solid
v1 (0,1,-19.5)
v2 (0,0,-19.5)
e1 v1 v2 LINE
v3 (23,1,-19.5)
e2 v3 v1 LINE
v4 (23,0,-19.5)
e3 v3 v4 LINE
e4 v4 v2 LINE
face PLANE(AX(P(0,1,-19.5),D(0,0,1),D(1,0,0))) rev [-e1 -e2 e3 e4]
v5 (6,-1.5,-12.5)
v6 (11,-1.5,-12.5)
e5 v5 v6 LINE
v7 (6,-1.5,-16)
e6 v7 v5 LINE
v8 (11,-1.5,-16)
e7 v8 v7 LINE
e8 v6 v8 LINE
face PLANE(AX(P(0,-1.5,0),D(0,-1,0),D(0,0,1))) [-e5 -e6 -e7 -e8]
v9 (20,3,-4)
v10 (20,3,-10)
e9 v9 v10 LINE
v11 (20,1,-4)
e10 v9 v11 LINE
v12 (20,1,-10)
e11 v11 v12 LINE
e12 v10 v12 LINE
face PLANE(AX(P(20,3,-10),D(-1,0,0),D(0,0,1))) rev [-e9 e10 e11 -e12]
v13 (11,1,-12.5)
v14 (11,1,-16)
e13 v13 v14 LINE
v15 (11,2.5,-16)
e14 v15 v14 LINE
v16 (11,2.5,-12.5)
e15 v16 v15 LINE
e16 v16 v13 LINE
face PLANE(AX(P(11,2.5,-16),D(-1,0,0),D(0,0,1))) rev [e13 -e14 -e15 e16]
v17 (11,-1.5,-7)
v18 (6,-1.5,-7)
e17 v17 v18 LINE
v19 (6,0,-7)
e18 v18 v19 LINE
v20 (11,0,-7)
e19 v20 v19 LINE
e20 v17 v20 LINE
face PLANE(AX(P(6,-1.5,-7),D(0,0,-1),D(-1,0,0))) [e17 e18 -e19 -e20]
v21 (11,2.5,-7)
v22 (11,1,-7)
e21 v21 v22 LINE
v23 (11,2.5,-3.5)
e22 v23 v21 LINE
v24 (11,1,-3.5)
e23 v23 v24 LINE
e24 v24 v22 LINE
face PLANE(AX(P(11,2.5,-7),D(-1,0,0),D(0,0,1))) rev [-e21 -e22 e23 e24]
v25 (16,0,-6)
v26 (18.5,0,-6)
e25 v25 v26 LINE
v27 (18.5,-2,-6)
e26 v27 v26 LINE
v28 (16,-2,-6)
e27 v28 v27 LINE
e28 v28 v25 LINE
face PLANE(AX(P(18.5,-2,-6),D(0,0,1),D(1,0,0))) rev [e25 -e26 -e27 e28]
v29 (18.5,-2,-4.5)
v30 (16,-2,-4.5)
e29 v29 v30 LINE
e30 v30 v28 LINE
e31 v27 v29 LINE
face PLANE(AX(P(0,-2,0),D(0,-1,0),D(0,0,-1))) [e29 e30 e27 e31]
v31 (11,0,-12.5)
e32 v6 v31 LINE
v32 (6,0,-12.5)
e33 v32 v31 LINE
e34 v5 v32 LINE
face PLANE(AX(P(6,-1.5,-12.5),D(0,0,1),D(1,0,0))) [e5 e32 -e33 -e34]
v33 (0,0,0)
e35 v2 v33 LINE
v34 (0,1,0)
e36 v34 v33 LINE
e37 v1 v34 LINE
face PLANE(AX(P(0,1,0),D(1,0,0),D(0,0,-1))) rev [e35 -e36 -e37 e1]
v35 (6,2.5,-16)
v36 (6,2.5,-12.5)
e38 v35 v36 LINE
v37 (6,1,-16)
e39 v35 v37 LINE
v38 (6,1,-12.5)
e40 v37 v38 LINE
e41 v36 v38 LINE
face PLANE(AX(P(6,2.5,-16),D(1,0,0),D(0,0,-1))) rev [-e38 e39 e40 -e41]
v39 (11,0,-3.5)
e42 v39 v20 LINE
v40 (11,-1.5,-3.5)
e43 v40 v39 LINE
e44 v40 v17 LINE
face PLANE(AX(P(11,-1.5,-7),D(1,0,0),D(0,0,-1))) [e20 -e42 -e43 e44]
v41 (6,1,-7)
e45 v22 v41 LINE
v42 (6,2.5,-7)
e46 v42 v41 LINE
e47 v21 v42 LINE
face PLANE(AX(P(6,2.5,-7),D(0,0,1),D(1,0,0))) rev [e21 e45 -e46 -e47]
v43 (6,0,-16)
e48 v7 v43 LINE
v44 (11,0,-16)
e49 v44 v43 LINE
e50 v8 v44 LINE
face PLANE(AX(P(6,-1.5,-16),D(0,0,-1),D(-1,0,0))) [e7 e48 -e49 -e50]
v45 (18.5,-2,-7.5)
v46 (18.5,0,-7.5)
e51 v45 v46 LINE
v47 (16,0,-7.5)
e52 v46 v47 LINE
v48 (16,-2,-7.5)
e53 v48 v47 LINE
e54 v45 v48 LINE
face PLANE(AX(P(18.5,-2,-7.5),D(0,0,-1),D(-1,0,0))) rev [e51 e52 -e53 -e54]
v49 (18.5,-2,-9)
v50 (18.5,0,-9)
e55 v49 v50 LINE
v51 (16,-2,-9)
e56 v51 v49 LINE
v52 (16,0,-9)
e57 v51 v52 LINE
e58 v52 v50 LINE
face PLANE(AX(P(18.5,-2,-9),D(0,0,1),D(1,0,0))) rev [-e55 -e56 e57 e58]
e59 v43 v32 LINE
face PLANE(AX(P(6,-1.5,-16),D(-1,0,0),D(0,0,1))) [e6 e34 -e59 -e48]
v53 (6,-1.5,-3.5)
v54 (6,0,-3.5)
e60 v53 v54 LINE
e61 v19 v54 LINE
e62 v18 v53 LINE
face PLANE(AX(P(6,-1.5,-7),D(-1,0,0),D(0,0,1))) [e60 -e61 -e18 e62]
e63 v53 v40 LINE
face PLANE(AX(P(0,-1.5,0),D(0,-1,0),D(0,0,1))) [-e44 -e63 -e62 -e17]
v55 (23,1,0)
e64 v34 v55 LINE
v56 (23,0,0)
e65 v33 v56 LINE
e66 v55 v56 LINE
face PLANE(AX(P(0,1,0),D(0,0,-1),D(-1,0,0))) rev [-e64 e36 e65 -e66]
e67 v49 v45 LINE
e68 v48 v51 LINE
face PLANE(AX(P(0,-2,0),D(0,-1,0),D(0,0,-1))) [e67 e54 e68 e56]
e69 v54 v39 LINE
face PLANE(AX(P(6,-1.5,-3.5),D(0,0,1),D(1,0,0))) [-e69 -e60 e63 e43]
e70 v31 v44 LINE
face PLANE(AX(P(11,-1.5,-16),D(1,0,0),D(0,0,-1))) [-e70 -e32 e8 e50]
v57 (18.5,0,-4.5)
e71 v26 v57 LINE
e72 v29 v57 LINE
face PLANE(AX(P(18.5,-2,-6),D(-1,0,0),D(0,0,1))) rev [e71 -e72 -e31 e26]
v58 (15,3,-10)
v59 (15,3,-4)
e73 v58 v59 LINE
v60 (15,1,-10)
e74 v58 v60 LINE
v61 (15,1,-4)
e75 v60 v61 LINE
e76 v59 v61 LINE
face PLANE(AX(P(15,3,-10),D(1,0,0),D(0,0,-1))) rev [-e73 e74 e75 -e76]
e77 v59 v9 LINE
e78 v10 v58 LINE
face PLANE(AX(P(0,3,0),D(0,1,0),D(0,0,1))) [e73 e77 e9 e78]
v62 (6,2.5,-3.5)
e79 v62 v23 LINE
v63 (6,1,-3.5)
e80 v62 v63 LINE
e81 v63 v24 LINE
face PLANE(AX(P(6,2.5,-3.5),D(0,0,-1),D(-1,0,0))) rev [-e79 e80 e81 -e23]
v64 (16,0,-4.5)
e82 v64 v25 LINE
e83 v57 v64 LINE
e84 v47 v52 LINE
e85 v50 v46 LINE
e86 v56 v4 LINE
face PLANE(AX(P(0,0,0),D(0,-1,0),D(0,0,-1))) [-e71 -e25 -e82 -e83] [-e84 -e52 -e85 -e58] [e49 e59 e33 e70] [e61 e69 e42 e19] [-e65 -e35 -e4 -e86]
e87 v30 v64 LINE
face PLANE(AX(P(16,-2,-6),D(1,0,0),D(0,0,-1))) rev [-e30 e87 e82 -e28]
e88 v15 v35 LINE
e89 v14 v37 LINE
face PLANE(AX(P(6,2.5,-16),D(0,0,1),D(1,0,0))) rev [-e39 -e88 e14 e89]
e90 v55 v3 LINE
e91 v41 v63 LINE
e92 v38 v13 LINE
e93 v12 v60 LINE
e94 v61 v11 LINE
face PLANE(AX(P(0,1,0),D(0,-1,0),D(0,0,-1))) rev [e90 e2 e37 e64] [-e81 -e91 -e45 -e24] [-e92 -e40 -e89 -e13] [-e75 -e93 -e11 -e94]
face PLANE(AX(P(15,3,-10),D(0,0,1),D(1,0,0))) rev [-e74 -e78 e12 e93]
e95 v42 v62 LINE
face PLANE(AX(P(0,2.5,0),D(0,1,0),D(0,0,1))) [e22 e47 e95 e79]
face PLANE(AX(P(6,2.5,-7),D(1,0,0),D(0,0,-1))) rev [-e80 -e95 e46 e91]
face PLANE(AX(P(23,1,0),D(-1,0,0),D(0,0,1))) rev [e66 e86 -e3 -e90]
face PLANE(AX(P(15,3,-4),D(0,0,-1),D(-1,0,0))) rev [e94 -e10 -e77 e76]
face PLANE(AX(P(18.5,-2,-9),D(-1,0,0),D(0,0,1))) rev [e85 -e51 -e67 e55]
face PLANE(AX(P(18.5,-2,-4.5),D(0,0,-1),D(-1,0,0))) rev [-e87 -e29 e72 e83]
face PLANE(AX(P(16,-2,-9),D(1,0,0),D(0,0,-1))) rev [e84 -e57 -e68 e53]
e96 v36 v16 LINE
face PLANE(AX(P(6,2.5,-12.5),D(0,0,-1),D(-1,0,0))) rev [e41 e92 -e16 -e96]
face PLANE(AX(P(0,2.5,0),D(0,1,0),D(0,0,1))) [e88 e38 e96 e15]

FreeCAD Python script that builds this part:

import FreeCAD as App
import Part
import Sketcher

doc = App.newDocument("Part")
body = doc.addObject("PartDesign::Body", "Body")

sketch1 = doc.addObject("Sketcher::SketchObject", "Sketch")
body.addObject(sketch1)
sketch1.AttachmentSupport = (doc.XZ_Plane, [""])
sketch1.MapMode = "FlatFace"
sketch1.addGeometry(Part.LineSegment(App.Vector(0, -20, 0), App.Vector(0, 0, 0)), False)
sketch1.addGeometry(Part.LineSegment(App.Vector(0, 0, 0), App.Vector(23, 0, 0)), False)
sketch1.addGeometry(Part.LineSegment(App.Vector(23, 0, 0), App.Vector(23, -20, 0)), False)
sketch1.addGeometry(Part.LineSegment(App.Vector(23, -20, 0), App.Vector(0, -20, 0)), False)
sketch1.addConstraint(Sketcher.Constraint("Coincident", 0, 2, 1, 1))
sketch1.addConstraint(Sketcher.Constraint("Coincident", 1, 2, 2, 1))
sketch1.addConstraint(Sketcher.Constraint("Coincident", 2, 2, 3, 1))
sketch1.addConstraint(Sketcher.Constraint("Coincident", 3, 2, 0, 1))
sketch1.addConstraint(Sketcher.Constraint("Vertical", 0))
sketch1.addConstraint(Sketcher.Constraint("Horizontal", 1))
sketch1.addConstraint(Sketcher.Constraint("Vertical", 2))
sketch1.addConstraint(Sketcher.Constraint("Horizontal", 3))
sketch1.addConstraint(Sketcher.Constraint("Coincident", 0, 2, -1, 1))
sketch1.addConstraint(Sketcher.Constraint("DistanceX", 1, 1, 1, 2, 23.0))
sketch1.addConstraint(Sketcher.Constraint("DistanceY", 0, 1, 0, 2, 19.5))
pad1 = doc.addObject("PartDesign::Pad", "Pad")
body.addObject(pad1)
pad1.Profile = sketch1
pad1.Length = 1
pad1.Reversed = True

sketch2 = doc.addObject("Sketcher::SketchObject", "Sketch001")
body.addObject(sketch2)
sketch2.AttachmentSupport = (doc.XZ_Plane, [""])
sketch2.MapMode = "FlatFace"
sketch2.AttachmentOffset = App.Placement(App.Vector(0, 0, -1), App.Rotation())
sketch2.addGeometry(Part.LineSegment(App.Vector(15, -10, 0), App.Vector(15, -4, 0)), False)
sketch2.addGeometry(Part.LineSegment(App.Vector(15, -4, 0), App.Vector(20, -4, 0)), False)
sketch2.addGeometry(Part.LineSegment(App.Vector(20, -4, 0), App.Vector(20, -10, 0)), False)
sketch2.addGeometry(Part.LineSegment(App.Vector(20, -10, 0), App.Vector(15, -10, 0)), False)
sketch2.addConstraint(Sketcher.Constraint("Coincident", 0, 2, 1, 1))
sketch2.addConstraint(Sketcher.Constraint("Coincident", 1, 2, 2, 1))
sketch2.addConstraint(Sketcher.Constraint("Coincident", 2, 2, 3, 1))
sketch2.addConstraint(Sketcher.Constraint("Coincident", 3, 2, 0, 1))
sketch2.addConstraint(Sketcher.Constraint("Vertical", 0))
sketch2.addConstraint(Sketcher.Constraint("Horizontal", 1))
sketch2.addConstraint(Sketcher.Constraint("Vertical", 2))
sketch2.addConstraint(Sketcher.Constraint("Horizontal", 3))
sketch2.addConstraint(Sketcher.Constraint("DistanceX", 1, 1, 1, 2, 5.0))
sketch2.addConstraint(Sketcher.Constraint("DistanceY", 0, 1, 0, 2, 6.0))
sketch2.addConstraint(Sketcher.Constraint("DistanceX", -1, 1, 0, 2, 15.0))
sketch2.addConstraint(Sketcher.Constraint("DistanceY", 0, 2, -1, 1, 4.0))
pad2 = doc.addObject("PartDesign::Pad", "Pad001")
body.addObject(pad2)
pad2.Profile = sketch2
pad2.Length = 2
pad2.Reversed = True

sketch3 = doc.addObject("Sketcher::SketchObject", "Sketch002")
body.addObject(sketch3)
sketch3.AttachmentSupport = (doc.XZ_Plane, [""])
sketch3.MapMode = "FlatFace"
sketch3.AttachmentOffset = App.Placement(App.Vector(0, 0, -1), App.Rotation())
sketch3.addGeometry(Part.LineSegment(App.Vector(6, -16, 0), App.Vector(6, -12.5, 0)), False)
sketch3.addGeometry(Part.LineSegment(App.Vector(6, -12.5, 0), App.Vector(11, -12.5, 0)), False)
sketch3.addGeometry(Part.LineSegment(App.Vector(11, -12.5, 0), App.Vector(11, -16, 0)), False)
sketch3.addGeometry(Part.LineSegment(App.Vector(11, -16, 0), App.Vector(6, -16, 0)), False)
sketch3.addGeometry(Part.LineSegment(App.Vector(6, -7, 0), App.Vector(6, -3.5, 0)), False)
sketch3.addGeometry(Part.LineSegment(App.Vector(6, -3.5, 0), App.Vector(11, -3.5, 0)), False)
sketch3.addGeometry(Part.LineSegment(App.Vector(11, -3.5, 0), App.Vector(11, -7, 0)), False)
sketch3.addGeometry(Part.LineSegment(App.Vector(11, -7, 0), App.Vector(6, -7, 0)), False)
sketch3.addConstraint(Sketcher.Constraint("Coincident", 0, 2, 1, 1))
sketch3.addConstraint(Sketcher.Constraint("Coincident", 1, 2, 2, 1))
sketch3.addConstraint(Sketcher.Constraint("Coincident", 2, 2, 3, 1))
sketch3.addConstraint(Sketcher.Constraint("Coincident", 3, 2, 0, 1))
sketch3.addConstraint(Sketcher.Constraint("Coincident", 4, 2, 5, 1))
sketch3.addConstraint(Sketcher.Constraint("Coincident", 5, 2, 6, 1))
sketch3.addConstraint(Sketcher.Constraint("Coincident", 6, 2, 7, 1))
sketch3.addConstraint(Sketcher.Constraint("Coincident", 7, 2, 4, 1))
sketch3.addConstraint(Sketcher.Constraint("Vertical", 0))
sketch3.addConstraint(Sketcher.Constraint("Horizontal", 1))
sketch3.addConstraint(Sketcher.Constraint("Vertical", 2))
sketch3.addConstraint(Sketcher.Constraint("Horizontal", 3))
sketch3.addConstraint(Sketcher.Constraint("Vertical", 4))
sketch3.addConstraint(Sketcher.Constraint("Horizontal", 5))
sketch3.addConstraint(Sketcher.Constraint("Vertical", 6))
sketch3.addConstraint(Sketcher.Constraint("Horizontal", 7))
sketch3.addConstraint(Sketcher.Constraint("Vertical", 3, 2, 4, 2))
sketch3.addConstraint(Sketcher.Constraint("Vertical", 2, 2, 5, 2))
sketch3.addConstraint(Sketcher.Constraint("Equal", 2, 4))
sketch3.addConstraint(Sketcher.Constraint("DistanceX", 1, 1, 1, 2, 5.0))
sketch3.addConstraint(Sketcher.Constraint("DistanceY", 0, 1, 0, 2, 3.5))
sketch3.addConstraint(Sketcher.Constraint("DistanceX", -1, 1, 0, 2, 6.0))
sketch3.addConstraint(Sketcher.Constraint("DistanceY", 2, 2, -1, 1, 16.0))
sketch3.addConstraint(Sketcher.Constraint("DistanceY", 6, 2, -1, 1, 7.0))
pad3 = doc.addObject("PartDesign::Pad", "Pad002")
body.addObject(pad3)
pad3.Profile = sketch3
pad3.Length = 1.5
pad3.Reversed = True
doc.recompute()

datumplane = doc.addObject("PartDesign::Plane", "DatumPlane")
body.addObject(datumplane)
datumplane.AttachmentSupport = (doc.XZ_Plane, [""])
datumplane.MapMode = "FlatFace"
datumplane.AttachmentOffset = App.Placement(App.Vector(0, 0, -0.5), App.Rotation())
mirrored = doc.addObject("PartDesign::Mirrored", "Mirrored")
body.addObject(mirrored)
mirrored.Originals = [pad3]
mirrored.MirrorPlane = (datumplane, [""])
body.Tip = mirrored

sketch4 = doc.addObject("Sketcher::SketchObject", "Sketch003")
body.addObject(sketch4)
sketch4.AttachmentSupport = (doc.XZ_Plane, [""])
sketch4.MapMode = "FlatFace"
sketch4.addGeometry(Part.LineSegment(App.Vector(16, -7.5, 0), App.Vector(16, -9, 0)), False)
sketch4.addGeometry(Part.LineSegment(App.Vector(16, -9, 0), App.Vector(18.5, -9, 0)), False)
sketch4.addGeometry(Part.LineSegment(App.Vector(18.5, -9, 0), App.Vector(18.5, -7.5, 0)), False)
sketch4.addGeometry(Part.LineSegment(App.Vector(18.5, -7.5, 0), App.Vector(16, -7.5, 0)), False)
sketch4.addGeometry(Part.LineSegment(App.Vector(16, -4.5, 0), App.Vector(16, -6, 0)), False)
sketch4.addGeometry(Part.LineSegment(App.Vector(16, -6, 0), App.Vector(18.5, -6, 0)), False)
sketch4.addGeometry(Part.LineSegment(App.Vector(18.5, -6, 0), App.Vector(18.5, -4.5, 0)), False)
sketch4.addGeometry(Part.LineSegment(App.Vector(18.5, -4.5, 0), App.Vector(16, -4.5, 0)), False)
sketch4.addConstraint(Sketcher.Constraint("Coincident", 0, 2, 1, 1))
sketch4.addConstraint(Sketcher.Constraint("Coincident", 1, 2, 2, 1))
sketch4.addConstraint(Sketcher.Constraint("Coincident", 2, 2, 3, 1))
sketch4.addConstraint(Sketcher.Constraint("Coincident", 3, 2, 0, 1))
sketch4.addConstraint(Sketcher.Constraint("Coincident", 4, 2, 5, 1))
sketch4.addConstraint(Sketcher.Constraint("Coincident", 5, 2, 6, 1))
sketch4.addConstraint(Sketcher.Constraint("Coincident", 6, 2, 7, 1))
sketch4.addConstraint(Sketcher.Constraint("Coincident", 7, 2, 4, 1))
sketch4.addConstraint(Sketcher.Constraint("Vertical", 0))
sketch4.addConstraint(Sketcher.Constraint("Horizontal", 1))
sketch4.addConstraint(Sketcher.Constraint("Vertical", 2))
sketch4.addConstraint(Sketcher.Constraint("Horizontal", 3))
sketch4.addConstraint(Sketcher.Constraint("Vertical", 4))
sketch4.addConstraint(Sketcher.Constraint("Horizontal", 5))
sketch4.addConstraint(Sketcher.Constraint("Vertical", 6))
sketch4.addConstraint(Sketcher.Constraint("Horizontal", 7))
sketch4.addConstraint(Sketcher.Constraint("Vertical", 3, 2, 4, 2))
sketch4.addConstraint(Sketcher.Constraint("Vertical", 2, 2, 5, 2))
sketch4.addConstraint(Sketcher.Constraint("Equal", 2, 4))
sketch4.addConstraint(Sketcher.Constraint("DistanceX", 1, 1, 1, 2, 2.5))
sketch4.addConstraint(Sketcher.Constraint("DistanceY", 0, 2, 0, 1, 1.5))
sketch4.addConstraint(Sketcher.Constraint("DistanceX", -1, 1, 0, 2, 16.0))
sketch4.addConstraint(Sketcher.Constraint("DistanceY", 0, 2, -1, 1, 9.0))
sketch4.addConstraint(Sketcher.Constraint("DistanceY", 4, 2, -1, 1, 6.0))
pad4 = doc.addObject("PartDesign::Pad", "Pad003")
body.addObject(pad4)
pad4.Profile = sketch4
pad4.Length = 2

doc.recompute()
